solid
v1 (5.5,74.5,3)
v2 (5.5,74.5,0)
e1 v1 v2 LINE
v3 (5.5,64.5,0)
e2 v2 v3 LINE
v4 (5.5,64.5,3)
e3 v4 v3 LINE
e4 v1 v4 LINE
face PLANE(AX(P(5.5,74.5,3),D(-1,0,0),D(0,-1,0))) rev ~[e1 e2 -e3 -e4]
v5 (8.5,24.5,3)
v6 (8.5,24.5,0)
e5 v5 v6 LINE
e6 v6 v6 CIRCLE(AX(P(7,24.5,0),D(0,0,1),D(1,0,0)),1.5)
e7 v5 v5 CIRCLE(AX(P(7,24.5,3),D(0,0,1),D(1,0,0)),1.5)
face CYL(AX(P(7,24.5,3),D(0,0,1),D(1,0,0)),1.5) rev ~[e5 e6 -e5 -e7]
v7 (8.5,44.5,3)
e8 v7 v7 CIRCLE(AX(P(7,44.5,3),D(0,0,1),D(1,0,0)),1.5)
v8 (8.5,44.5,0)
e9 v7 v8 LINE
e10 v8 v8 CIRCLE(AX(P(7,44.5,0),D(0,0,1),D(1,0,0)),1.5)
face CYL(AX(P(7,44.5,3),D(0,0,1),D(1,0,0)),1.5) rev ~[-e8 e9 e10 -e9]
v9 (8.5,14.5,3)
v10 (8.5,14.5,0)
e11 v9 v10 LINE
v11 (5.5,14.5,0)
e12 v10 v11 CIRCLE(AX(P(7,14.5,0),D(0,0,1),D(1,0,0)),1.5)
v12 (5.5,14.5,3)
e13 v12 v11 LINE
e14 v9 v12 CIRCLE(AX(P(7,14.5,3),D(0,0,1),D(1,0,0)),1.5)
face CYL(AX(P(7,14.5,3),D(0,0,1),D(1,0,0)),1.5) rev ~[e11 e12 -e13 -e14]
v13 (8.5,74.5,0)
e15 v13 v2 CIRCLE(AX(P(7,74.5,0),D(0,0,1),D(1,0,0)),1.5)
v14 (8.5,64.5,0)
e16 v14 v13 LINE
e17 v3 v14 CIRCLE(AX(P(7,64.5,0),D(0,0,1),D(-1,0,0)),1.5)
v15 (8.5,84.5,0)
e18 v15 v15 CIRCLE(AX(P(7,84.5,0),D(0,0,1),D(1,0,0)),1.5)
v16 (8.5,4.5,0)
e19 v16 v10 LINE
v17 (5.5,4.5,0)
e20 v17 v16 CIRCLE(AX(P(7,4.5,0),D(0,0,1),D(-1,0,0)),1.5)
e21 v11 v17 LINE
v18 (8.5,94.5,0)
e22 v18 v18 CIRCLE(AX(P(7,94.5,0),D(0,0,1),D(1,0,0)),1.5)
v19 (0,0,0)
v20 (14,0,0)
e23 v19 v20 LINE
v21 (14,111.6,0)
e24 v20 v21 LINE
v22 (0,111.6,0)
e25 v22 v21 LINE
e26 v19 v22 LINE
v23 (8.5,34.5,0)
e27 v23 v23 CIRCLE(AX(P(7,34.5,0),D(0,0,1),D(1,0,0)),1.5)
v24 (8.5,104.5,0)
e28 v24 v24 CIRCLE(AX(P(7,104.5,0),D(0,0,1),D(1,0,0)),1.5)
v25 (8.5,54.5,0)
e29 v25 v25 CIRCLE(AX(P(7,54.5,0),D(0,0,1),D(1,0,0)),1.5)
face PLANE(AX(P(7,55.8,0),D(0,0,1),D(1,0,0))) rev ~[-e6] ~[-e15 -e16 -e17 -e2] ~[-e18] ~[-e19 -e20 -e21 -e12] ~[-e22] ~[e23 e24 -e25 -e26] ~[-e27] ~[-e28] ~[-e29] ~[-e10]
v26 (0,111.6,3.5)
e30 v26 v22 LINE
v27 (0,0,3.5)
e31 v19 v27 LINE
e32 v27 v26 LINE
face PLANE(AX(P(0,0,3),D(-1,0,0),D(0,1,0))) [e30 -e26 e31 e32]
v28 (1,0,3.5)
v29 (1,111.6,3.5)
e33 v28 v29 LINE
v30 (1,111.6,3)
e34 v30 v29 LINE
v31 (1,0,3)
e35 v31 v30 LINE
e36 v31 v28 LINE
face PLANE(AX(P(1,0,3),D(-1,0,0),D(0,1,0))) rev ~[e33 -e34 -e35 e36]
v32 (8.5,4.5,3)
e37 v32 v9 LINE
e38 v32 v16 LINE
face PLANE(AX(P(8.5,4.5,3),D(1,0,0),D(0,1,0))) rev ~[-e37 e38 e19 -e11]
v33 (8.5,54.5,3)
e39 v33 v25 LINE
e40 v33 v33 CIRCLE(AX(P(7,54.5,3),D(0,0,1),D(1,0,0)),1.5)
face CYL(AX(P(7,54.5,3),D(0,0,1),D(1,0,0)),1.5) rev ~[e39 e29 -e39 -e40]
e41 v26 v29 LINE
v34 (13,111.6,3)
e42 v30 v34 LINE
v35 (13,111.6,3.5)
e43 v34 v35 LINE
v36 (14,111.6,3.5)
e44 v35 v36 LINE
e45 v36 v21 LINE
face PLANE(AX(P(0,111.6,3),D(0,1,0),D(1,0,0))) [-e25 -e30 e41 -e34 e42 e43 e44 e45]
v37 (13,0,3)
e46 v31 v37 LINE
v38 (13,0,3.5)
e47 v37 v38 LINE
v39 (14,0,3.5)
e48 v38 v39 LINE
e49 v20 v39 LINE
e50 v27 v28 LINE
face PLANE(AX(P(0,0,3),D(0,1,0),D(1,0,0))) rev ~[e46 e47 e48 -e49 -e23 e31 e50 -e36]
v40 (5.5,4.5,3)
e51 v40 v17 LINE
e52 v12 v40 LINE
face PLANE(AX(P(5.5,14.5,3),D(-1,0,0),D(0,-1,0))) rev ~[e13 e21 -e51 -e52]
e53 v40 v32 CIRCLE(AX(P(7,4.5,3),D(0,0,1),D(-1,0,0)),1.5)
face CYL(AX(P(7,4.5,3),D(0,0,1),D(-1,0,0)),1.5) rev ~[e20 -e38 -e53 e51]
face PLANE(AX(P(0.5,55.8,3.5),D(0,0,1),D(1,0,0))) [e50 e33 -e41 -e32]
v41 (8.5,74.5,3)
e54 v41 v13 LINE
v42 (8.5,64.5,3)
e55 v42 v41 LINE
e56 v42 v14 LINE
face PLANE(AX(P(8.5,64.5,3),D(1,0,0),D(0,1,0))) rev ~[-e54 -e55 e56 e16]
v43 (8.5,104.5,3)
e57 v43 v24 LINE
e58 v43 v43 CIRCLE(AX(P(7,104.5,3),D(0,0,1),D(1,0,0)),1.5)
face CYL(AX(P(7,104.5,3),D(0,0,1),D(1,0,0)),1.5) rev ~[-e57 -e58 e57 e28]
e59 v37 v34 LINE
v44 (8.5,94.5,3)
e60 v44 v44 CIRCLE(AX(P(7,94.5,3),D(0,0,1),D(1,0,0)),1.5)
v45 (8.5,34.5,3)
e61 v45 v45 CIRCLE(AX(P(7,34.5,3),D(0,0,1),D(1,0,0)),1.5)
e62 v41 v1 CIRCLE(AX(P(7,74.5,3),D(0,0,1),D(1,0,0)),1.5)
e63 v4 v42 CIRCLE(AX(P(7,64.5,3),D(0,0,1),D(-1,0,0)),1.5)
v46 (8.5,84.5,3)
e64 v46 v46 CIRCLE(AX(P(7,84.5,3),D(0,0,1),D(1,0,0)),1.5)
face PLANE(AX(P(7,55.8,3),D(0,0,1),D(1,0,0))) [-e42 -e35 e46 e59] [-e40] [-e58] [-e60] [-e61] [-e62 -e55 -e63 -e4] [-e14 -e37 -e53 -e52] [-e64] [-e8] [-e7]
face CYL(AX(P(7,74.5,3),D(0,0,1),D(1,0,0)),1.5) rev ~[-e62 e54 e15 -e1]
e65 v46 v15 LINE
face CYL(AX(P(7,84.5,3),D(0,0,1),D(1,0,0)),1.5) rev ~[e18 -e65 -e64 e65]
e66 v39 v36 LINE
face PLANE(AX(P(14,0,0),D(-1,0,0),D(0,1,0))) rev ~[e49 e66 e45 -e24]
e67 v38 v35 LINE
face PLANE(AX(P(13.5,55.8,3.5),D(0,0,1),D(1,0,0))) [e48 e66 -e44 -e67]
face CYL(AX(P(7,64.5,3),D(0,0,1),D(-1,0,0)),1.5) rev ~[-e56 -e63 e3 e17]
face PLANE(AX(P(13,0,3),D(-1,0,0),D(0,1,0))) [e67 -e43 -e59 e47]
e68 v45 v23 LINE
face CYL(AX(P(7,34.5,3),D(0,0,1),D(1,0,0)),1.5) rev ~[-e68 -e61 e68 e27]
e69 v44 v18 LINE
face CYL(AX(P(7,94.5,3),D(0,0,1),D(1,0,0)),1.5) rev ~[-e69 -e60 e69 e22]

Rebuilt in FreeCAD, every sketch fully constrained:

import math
import FreeCAD as App
import Part
import Sketcher

doc = App.newDocument("Part")
params = doc.addObject("Spreadsheet::Sheet", "Params")
for row, (alias, value) in enumerate([
    ("sketch1_width", "14 mm"),
    ("sketch1_height", "111.6 mm"),
    ("pad1_length", "3 mm"),
    ("sketch2_width", "1 mm"),
    ("sketch2_height", "111.6 mm"),
    ("pad2_length", "0.5 mm"),
    ("sketch3_diameter", "3 mm"),
    ("sketch3_height", "10 mm"),
    ("pocket1_length", "25 mm"),
], start=1):
    params.set(f"A{row}", alias)
    params.set(f"B{row}", "=" + value)
    params.setAlias(f"B{row}", alias)

body = doc.addObject("PartDesign::Body", "Body")

sketch1 = doc.addObject("Sketcher::SketchObject", "Sketch")
body.addObject(sketch1)
sketch1.AttachmentSupport = (doc.XY_Plane, [""])
sketch1.MapMode = "FlatFace"
sketch1.addGeometry([
    Part.LineSegment(App.Vector(0, 111.6, 0), App.Vector(0, 0, 0)),
    Part.LineSegment(App.Vector(0, 0, 0), App.Vector(14, 0, 0)),
    Part.LineSegment(App.Vector(14, 0, 0), App.Vector(14, 111.6, 0)),
    Part.LineSegment(App.Vector(14, 111.6, 0), App.Vector(0, 111.6, 0)),
], False)
sketch1.addConstraint([
    Sketcher.Constraint("Coincident", 0, 2, 1, 1),
    Sketcher.Constraint("Coincident", 1, 2, 2, 1),
    Sketcher.Constraint("Coincident", 2, 2, 3, 1),
    Sketcher.Constraint("Coincident", 3, 2, 0, 1),
    Sketcher.Constraint("Vertical", 0),
    Sketcher.Constraint("Horizontal", 1),
    Sketcher.Constraint("Vertical", 2),
    Sketcher.Constraint("Horizontal", 3),
    Sketcher.Constraint("Coincident", 0, 2, -1, 1),
    Sketcher.Constraint("DistanceX", 1, 1, 1, 2, 14.0),
    Sketcher.Constraint("DistanceY", 0, 2, 0, 1, 111.6),
])
sketch1.setExpression("Constraints[9]", "Params.sketch1_width")
sketch1.setExpression("Constraints[10]", "Params.sketch1_height")
pad1 = doc.addObject("PartDesign::Pad", "Pad")
body.addObject(pad1)
pad1.Profile = sketch1
pad1.setExpression("Length", "Params.pad1_length")

sketch2 = doc.addObject("Sketcher::SketchObject", "Sketch001")
body.addObject(sketch2)
sketch2.AttachmentSupport = (doc.XY_Plane, [""])
sketch2.MapMode = "FlatFace"
sketch2.AttachmentOffset = App.Placement(App.Vector(0, 0, 3), App.Rotation())
sketch2.addGeometry([
    Part.LineSegment(App.Vector(0, 111.6, 0), App.Vector(0, 0, 0)),
    Part.LineSegment(App.Vector(0, 0, 0), App.Vector(1, 0, 0)),
    Part.LineSegment(App.Vector(1, 0, 0), App.Vector(1, 111.6, 0)),
    Part.LineSegment(App.Vector(1, 111.6, 0), App.Vector(0, 111.6, 0)),
    Part.LineSegment(App.Vector(13, 111.6, 0), App.Vector(13, 0, 0)),
    Part.LineSegment(App.Vector(13, 0, 0), App.Vector(14, 0, 0)),
    Part.LineSegment(App.Vector(14, 0, 0), App.Vector(14, 111.6, 0)),
    Part.LineSegment(App.Vector(14, 111.6, 0), App.Vector(13, 111.6, 0)),
], False)
sketch2.addConstraint([
    Sketcher.Constraint("Coincident", 0, 2, 1, 1),
    Sketcher.Constraint("Coincident", 1, 2, 2, 1),
    Sketcher.Constraint("Coincident", 2, 2, 3, 1),
    Sketcher.Constraint("Coincident", 3, 2, 0, 1),
    Sketcher.Constraint("Coincident", 4, 2, 5, 1),
    Sketcher.Constraint("Coincident", 5, 2, 6, 1),
    Sketcher.Constraint("Coincident", 6, 2, 7, 1),
    Sketcher.Constraint("Coincident", 7, 2, 4, 1),
    Sketcher.Constraint("Vertical", 0),
    Sketcher.Constraint("Horizontal", 1),
    Sketcher.Constraint("Vertical", 2),
    Sketcher.Constraint("Horizontal", 3),
    Sketcher.Constraint("Vertical", 4),
    Sketcher.Constraint("Horizontal", 5),
    Sketcher.Constraint("Vertical", 6),
    Sketcher.Constraint("Horizontal", 7),
    Sketcher.Constraint("Coincident", 0, 2, -1, 1),
    Sketcher.Constraint("PointOnObject", 4, 2, -1),
    Sketcher.Constraint("Horizontal", 3, 2, 6, 2),
    Sketcher.Constraint("Equal", 3, 5),
    Sketcher.Constraint("DistanceX", 1, 1, 1, 2, 1.0),
    Sketcher.Constraint("DistanceY", 0, 2, 0, 1, 111.6),
    Sketcher.Constraint("DistanceX", -1, 1, 4, 2, 13.0),
])
sketch2.setExpression("Constraints[20]", "Params.sketch2_width")
sketch2.setExpression("Constraints[21]", "Params.sketch2_height")
pad2 = doc.addObject("PartDesign::Pad", "Pad001")
body.addObject(pad2)
pad2.Profile = sketch2
pad2.setExpression("Length", "Params.pad2_length")

sketch3 = doc.addObject("Sketcher::SketchObject", "Sketch002")
body.addObject(sketch3)
sketch3.AttachmentSupport = (doc.XY_Plane, [""])
sketch3.MapMode = "FlatFace"
sketch3.AttachmentOffset = App.Placement(App.Vector(0, 0, 3), App.Rotation())
sketch3.addGeometry([
    Part.LineSegment(App.Vector(5.5, 14.5, 0), App.Vector(5.5, 4.5, 0)),
    Part.ArcOfCircle(Part.Circle(App.Vector(7, 4.5, 0), App.Vector(0, 0, 1), 1.5), math.radians(180), math.radians(360)),
    Part.LineSegment(App.Vector(8.5, 4.5, 0), App.Vector(8.5, 14.5, 0)),
    Part.ArcOfCircle(Part.Circle(App.Vector(7, 14.5, 0), App.Vector(0, 0, 1), 1.5), math.radians(0), math.radians(180)),
    Part.Circle(App.Vector(7, 24.5, 0), App.Vector(0, 0, 1), 1.5),
    Part.Circle(App.Vector(7, 34.5, 0), App.Vector(0, 0, 1), 1.5),
    Part.Circle(App.Vector(7, 44.5, 0), App.Vector(0, 0, 1), 1.5),
    Part.Circle(App.Vector(7, 54.5, 0), App.Vector(0, 0, 1), 1.5),
    Part.LineSegment(App.Vector(5.5, 74.5, 0), App.Vector(5.5, 64.5, 0)),
    Part.ArcOfCircle(Part.Circle(App.Vector(7, 64.5, 0), App.Vector(0, 0, 1), 1.5), math.radians(180), math.radians(360)),
    Part.LineSegment(App.Vector(8.5, 64.5, 0), App.Vector(8.5, 74.5, 0)),
    Part.ArcOfCircle(Part.Circle(App.Vector(7, 74.5, 0), App.Vector(0, 0, 1), 1.5), math.radians(0), math.radians(180)),
    Part.Circle(App.Vector(7, 84.5, 0), App.Vector(0, 0, 1), 1.5),
    Part.Circle(App.Vector(7, 94.5, 0), App.Vector(0, 0, 1), 1.5),
    Part.Circle(App.Vector(7, 104.5, 0), App.Vector(0, 0, 1), 1.5),
], False)
sketch3.addConstraint([
    Sketcher.Constraint("Tangent", 0, 2, 1, 1),
    Sketcher.Constraint("Tangent", 1, 2, 2, 1),
    Sketcher.Constraint("Tangent", 2, 2, 3, 1),
    Sketcher.Constraint("Tangent", 3, 2, 0, 1),
    Sketcher.Constraint("Tangent", 8, 2, 9, 1),
    Sketcher.Constraint("Tangent", 9, 2, 10, 1),
    Sketcher.Constraint("Tangent", 10, 2, 11, 1),
    Sketcher.Constraint("Tangent", 11, 2, 8, 1),
    Sketcher.Constraint("Vertical", 0),
    Sketcher.Constraint("Vertical", 2),
    Sketcher.Constraint("Vertical", 8),
    Sketcher.Constraint("Vertical", 10),
    Sketcher.Constraint("Equal", 3, 4),
    Sketcher.Constraint("Equal", 4, 5),
    Sketcher.Constraint("Equal", 5, 6),
    Sketcher.Constraint("Equal", 6, 7),
    Sketcher.Constraint("Equal", 7, 9),
    Sketcher.Constraint("Equal", 11, 12),
    Sketcher.Constraint("Equal", 12, 13),
    Sketcher.Constraint("Equal", 13, 14),
    Sketcher.Constraint("Vertical", 3, 3, 4, 3),
    Sketcher.Constraint("Vertical", 4, 3, 5, 3),
    Sketcher.Constraint("Vertical", 5, 3, 6, 3),
    Sketcher.Constraint("Vertical", 6, 3, 7, 3),
    Sketcher.Constraint("Vertical", 7, 3, 9, 3),
    Sketcher.Constraint("Vertical", 11, 3, 12, 3),
    Sketcher.Constraint("Vertical", 12, 3, 13, 3),
    Sketcher.Constraint("Vertical", 13, 3, 14, 3),
    Sketcher.Constraint("Equal", 2, 8),
    Sketcher.Constraint("Diameter", 4, 3.0),
    Sketcher.Constraint("DistanceY", 0, 2, 0, 1, 10.0),
    Sketcher.Constraint("DistanceX", -1, 1, 1, 3, 7.0),
    Sketcher.Constraint("DistanceY", 3, 3, 4, 3, 10.0),
    Sketcher.Constraint("DistanceY", 4, 3, 5, 3, 10.0),
    Sketcher.Constraint("DistanceY", 5, 3, 6, 3, 10.0),
    Sketcher.Constraint("DistanceY", 6, 3, 7, 3, 10.0),
    Sketcher.Constraint("DistanceY", 7, 3, 9, 3, 10.0),
    Sketcher.Constraint("DistanceY", 11, 3, 12, 3, 10.0),
    Sketcher.Constraint("DistanceY", 12, 3, 13, 3, 10.0),
    Sketcher.Constraint("DistanceY", 13, 3, 14, 3, 10.0),
    Sketcher.Constraint("DistanceY", -1, 1, 1, 3, 4.5),
])
sketch3.setExpression("Constraints[29]", "Params.sketch3_diameter")
sketch3.setExpression("Constraints[30]", "Params.sketch3_height")
pocket1 = doc.addObject("PartDesign::Pocket", "Pocket")
body.addObject(pocket1)
pocket1.Profile = sketch3
pocket1.setExpression("Length", "Params.pocket1_length")

doc.recompute()
